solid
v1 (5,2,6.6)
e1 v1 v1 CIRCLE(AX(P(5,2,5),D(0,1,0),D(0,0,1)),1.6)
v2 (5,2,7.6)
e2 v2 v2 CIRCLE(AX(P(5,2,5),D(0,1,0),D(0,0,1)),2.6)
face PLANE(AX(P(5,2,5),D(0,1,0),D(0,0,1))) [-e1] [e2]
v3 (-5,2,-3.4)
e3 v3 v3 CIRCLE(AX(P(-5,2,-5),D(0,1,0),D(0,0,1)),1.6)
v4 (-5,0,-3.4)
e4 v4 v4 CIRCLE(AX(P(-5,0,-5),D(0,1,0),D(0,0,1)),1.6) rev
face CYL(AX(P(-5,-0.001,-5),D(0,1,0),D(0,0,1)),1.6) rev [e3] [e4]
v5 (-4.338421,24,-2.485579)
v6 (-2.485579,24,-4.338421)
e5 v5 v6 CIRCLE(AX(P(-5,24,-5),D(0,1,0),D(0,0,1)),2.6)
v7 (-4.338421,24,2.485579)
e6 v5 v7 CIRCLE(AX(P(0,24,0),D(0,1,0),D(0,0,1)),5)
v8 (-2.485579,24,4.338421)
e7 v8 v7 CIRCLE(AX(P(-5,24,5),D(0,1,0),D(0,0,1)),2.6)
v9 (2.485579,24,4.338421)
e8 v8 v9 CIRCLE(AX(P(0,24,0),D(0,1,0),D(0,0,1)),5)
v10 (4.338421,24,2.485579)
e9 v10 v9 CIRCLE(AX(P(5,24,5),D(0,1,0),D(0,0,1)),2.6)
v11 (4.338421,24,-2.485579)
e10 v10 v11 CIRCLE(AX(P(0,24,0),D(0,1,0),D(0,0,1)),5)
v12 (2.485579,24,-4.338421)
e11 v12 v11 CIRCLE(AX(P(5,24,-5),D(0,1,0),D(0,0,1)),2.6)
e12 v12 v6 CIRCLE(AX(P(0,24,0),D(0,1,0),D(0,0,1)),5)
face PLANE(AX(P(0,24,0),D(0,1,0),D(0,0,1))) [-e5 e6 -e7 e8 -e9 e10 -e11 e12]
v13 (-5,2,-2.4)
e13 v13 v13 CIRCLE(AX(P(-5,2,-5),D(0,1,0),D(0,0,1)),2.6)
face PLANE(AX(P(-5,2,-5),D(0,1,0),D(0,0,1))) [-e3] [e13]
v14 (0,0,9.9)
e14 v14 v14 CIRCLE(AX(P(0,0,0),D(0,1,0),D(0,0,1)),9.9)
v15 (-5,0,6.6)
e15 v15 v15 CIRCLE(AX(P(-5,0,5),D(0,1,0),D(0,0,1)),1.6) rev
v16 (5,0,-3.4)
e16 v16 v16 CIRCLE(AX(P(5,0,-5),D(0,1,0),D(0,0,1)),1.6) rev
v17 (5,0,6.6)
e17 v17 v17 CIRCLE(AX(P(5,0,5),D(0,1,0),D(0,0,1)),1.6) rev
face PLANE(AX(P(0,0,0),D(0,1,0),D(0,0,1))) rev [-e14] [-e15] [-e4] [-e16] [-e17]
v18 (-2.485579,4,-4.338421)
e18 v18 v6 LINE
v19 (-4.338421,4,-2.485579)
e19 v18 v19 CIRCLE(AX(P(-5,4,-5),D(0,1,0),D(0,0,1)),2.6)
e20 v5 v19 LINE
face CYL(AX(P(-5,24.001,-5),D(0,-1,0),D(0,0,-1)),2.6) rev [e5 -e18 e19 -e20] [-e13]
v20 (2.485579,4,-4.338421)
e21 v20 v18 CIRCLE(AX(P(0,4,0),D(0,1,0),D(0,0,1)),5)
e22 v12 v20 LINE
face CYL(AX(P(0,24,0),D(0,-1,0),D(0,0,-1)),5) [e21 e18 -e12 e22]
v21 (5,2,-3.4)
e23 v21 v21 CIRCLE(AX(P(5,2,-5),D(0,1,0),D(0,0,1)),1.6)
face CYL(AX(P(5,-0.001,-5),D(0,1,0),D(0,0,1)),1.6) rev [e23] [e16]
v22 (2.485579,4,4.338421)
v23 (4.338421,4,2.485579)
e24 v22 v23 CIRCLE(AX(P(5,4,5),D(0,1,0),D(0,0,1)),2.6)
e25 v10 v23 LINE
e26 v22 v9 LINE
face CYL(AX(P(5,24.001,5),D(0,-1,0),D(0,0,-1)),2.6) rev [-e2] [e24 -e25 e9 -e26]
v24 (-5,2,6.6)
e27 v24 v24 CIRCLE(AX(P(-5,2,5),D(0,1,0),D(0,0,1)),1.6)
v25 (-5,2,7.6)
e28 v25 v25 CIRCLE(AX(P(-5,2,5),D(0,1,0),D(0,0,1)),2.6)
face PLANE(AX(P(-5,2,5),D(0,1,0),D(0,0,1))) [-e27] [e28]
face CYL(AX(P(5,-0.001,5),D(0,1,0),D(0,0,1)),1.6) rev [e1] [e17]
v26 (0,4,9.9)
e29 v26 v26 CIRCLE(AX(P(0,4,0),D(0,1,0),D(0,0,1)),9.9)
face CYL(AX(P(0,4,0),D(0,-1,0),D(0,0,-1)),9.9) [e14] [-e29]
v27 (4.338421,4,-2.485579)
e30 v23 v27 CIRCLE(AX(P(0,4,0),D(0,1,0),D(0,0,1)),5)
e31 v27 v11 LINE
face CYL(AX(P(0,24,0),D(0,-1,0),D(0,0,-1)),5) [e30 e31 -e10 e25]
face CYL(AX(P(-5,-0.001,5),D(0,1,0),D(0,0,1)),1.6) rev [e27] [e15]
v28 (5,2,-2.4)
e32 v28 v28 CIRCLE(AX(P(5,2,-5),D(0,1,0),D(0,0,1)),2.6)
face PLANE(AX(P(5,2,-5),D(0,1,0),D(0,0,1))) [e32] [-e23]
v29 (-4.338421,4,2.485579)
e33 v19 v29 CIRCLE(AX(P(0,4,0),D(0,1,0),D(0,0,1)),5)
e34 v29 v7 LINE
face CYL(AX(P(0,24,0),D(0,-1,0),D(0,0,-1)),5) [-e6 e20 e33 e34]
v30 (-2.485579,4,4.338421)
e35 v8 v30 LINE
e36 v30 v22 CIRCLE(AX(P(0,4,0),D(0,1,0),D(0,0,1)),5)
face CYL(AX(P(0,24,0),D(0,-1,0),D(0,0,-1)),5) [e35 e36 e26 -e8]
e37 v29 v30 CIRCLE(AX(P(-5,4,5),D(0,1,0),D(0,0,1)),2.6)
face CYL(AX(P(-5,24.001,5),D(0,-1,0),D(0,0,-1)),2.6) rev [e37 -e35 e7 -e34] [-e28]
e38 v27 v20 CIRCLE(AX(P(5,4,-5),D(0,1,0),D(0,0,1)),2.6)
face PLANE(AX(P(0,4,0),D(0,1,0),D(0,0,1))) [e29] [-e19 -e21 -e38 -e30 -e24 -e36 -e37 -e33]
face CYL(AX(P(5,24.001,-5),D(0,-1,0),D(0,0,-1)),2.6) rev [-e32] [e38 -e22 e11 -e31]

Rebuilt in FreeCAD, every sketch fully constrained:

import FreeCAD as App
import Part
import Sketcher
from FreeCAD import Vector

doc = App.newDocument("Part")
body = doc.addObject("PartDesign::Body", "Body")

# Sketch on XZ plane
sketch1 = body.newObject("Sketcher::SketchObject", "Sketch")
sketch1.AttachmentSupport = (doc.getObject("XZ_Plane"), [""])
sketch1.MapMode = "FlatFace"
sketch1.addGeometry(Part.Circle(Vector(0, 0, 0), Vector(0, 0, 1), 10), False)
sketch1.addConstraint([
    Sketcher.Constraint("Coincident", 0, 3, -1, 1),
    Sketcher.Constraint("Diameter", 0, 19.8),
])
pad1 = body.newObject("PartDesign::Pad", "Pad")
pad1.Profile = sketch1
pad1.Length = 4
pad1.Reversed = True

# Sketch on XZ plane
sketch2 = body.newObject("Sketcher::SketchObject", "Sketch001")
sketch2.AttachmentSupport = (doc.getObject("XZ_Plane"), [""])
sketch2.MapMode = "FlatFace"
sketch2.AttachmentOffset = App.Placement(Vector(0, 0, -4), App.Rotation())
sketch2.addGeometry(Part.Circle(Vector(0, 0, 0), Vector(0, 0, 1), 5), False)
sketch2.addConstraint([
    Sketcher.Constraint("Coincident", 0, 3, -1, 1),
    Sketcher.Constraint("Diameter", 0, 10.0),
])
pad2 = body.newObject("PartDesign::Pad", "Pad001")
pad2.Profile = sketch2
pad2.Length = 20
pad2.Reversed = True

# Sketch on XZ plane
sketch3 = body.newObject("Sketcher::SketchObject", "Sketch002")
sketch3.AttachmentSupport = (doc.getObject("XZ_Plane"), [""])
sketch3.MapMode = "FlatFace"
sketch3.AttachmentOffset = App.Placement(Vector(0, 0, -4), App.Rotation())
sketch3.addGeometry(Part.Circle(Vector(5, -5, 0), Vector(0, 0, 1), 1.6), False)
sketch3.addConstraint([
    Sketcher.Constraint("Diameter", 0, 3.2),
    Sketcher.Constraint("DistanceX", -1, 1, 0, 3, 5.0),
    Sketcher.Constraint("DistanceY", 0, 3, -1, 1, 5.0),
])
pocket1 = body.newObject("PartDesign::Pocket", "Pocket")
pocket1.Profile = sketch3
pocket1.Type = "UpToFirst"
pocket1.Reversed = True

# Sketch on XZ plane
sketch4 = body.newObject("Sketcher::SketchObject", "Sketch003")
sketch4.AttachmentSupport = (doc.getObject("XZ_Plane"), [""])
sketch4.MapMode = "FlatFace"
sketch4.AttachmentOffset = App.Placement(Vector(0, 0, -4), App.Rotation())
sketch4.addGeometry(Part.Circle(Vector(5, 5, 0), Vector(0, 0, 1), 1.6), False)
sketch4.addConstraint([
    Sketcher.Constraint("Diameter", 0, 3.2),
    Sketcher.Constraint("DistanceX", -1, 1, 0, 3, 5.0),
    Sketcher.Constraint("DistanceY", -1, 1, 0, 3, 5.0),
])
pocket2 = body.newObject("PartDesign::Pocket", "Pocket001")
pocket2.Profile = sketch4
pocket2.Type = "UpToFirst"
pocket2.Reversed = True

# Sketch on XZ plane
sketch5 = body.newObject("Sketcher::SketchObject", "Sketch004")
sketch5.AttachmentSupport = (doc.getObject("XZ_Plane"), [""])
sketch5.MapMode = "FlatFace"
sketch5.AttachmentOffset = App.Placement(Vector(0, 0, -4), App.Rotation())
sketch5.addGeometry(Part.Circle(Vector(-5, 5, 0), Vector(0, 0, 1), 1.6), False)
sketch5.addConstraint([
    Sketcher.Constraint("Diameter", 0, 3.2),
    Sketcher.Constraint("DistanceX", 0, 3, -1, 1, 5.0),
    Sketcher.Constraint("DistanceY", -1, 1, 0, 3, 5.0),
])
pocket3 = body.newObject("PartDesign::Pocket", "Pocket002")
pocket3.Profile = sketch5
pocket3.Type = "UpToFirst"
pocket3.Reversed = True

# Sketch on XZ plane
sketch6 = body.newObject("Sketcher::SketchObject", "Sketch005")
sketch6.AttachmentSupport = (doc.getObject("XZ_Plane"), [""])
sketch6.MapMode = "FlatFace"
sketch6.AttachmentOffset = App.Placement(Vector(0, 0, -4), App.Rotation())
sketch6.addGeometry(Part.Circle(Vector(-5, -5, 0), Vector(0, 0, 1), 1.6), False)
sketch6.addConstraint([
    Sketcher.Constraint("Diameter", 0, 3.2),
    Sketcher.Constraint("DistanceX", 0, 3, -1, 1, 5.0),
    Sketcher.Constraint("DistanceY", 0, 3, -1, 1, 5.0),
])
pocket4 = body.newObject("PartDesign::Pocket", "Pocket003")
pocket4.Profile = sketch6
pocket4.Type = "UpToFirst"
pocket4.Reversed = True

# Sketch on XZ plane
sketch7 = body.newObject("Sketcher::SketchObject", "Sketch006")
sketch7.AttachmentSupport = (doc.getObject("XZ_Plane"), [""])
sketch7.MapMode = "FlatFace"
sketch7.AttachmentOffset = App.Placement(Vector(0, 0, -4), App.Rotation())
sketch7.addGeometry([
    Part.Circle(Vector(5, -5, 0), Vector(0, 0, 1), 2.6),
    Part.Circle(Vector(5, -5, 0), Vector(0, 0, 1), 1.6),
], False)
sketch7.addConstraint([
    Sketcher.Constraint("Coincident", 1, 3, 0, 3),
    Sketcher.Constraint("Diameter", 0, 5.2),
    Sketcher.Constraint("Diameter", 1, 3.2),
    Sketcher.Constraint("DistanceX", -1, 1, 0, 3, 5.0),
    Sketcher.Constraint("DistanceY", 0, 3, -1, 1, 5.0),
])
pocket5 = body.newObject("PartDesign::Pocket", "Pocket004")
pocket5.Profile = sketch7
pocket5.Length = 20

# Sketch on XZ plane
sketch8 = body.newObject("Sketcher::SketchObject", "Sketch007")
sketch8.AttachmentSupport = (doc.getObject("XZ_Plane"), [""])
sketch8.MapMode = "FlatFace"
sketch8.AttachmentOffset = App.Placement(Vector(0, 0, -4), App.Rotation())
sketch8.addGeometry([
    Part.Circle(Vector(-5, -5, 0), Vector(0, 0, 1), 2.6),
    Part.Circle(Vector(-5, -5, 0), Vector(0, 0, 1), 1.6),
], False)
sketch8.addConstraint([
    Sketcher.Constraint("Coincident", 1, 3, 0, 3),
    Sketcher.Constraint("Diameter", 0, 5.2),
    Sketcher.Constraint("Diameter", 1, 3.2),
    Sketcher.Constraint("DistanceX", 0, 3, -1, 1, 5.0),
    Sketcher.Constraint("DistanceY", 0, 3, -1, 1, 5.0),
])
pocket6 = body.newObject("PartDesign::Pocket", "Pocket005")
pocket6.Profile = sketch8
pocket6.Length = 20

# Sketch on XZ plane
sketch9 = body.newObject("Sketcher::SketchObject", "Sketch008")
sketch9.AttachmentSupport = (doc.getObject("XZ_Plane"), [""])
sketch9.MapMode = "FlatFace"
sketch9.AttachmentOffset = App.Placement(Vector(0, 0, -4), App.Rotation())
sketch9.addGeometry([
    Part.Circle(Vector(-5, 5, 0), Vector(0, 0, 1), 2.6),
    Part.Circle(Vector(-5, 5, 0), Vector(0, 0, 1), 1.6),
], False)
sketch9.addConstraint([
    Sketcher.Constraint("Coincident", 1, 3, 0, 3),
    Sketcher.Constraint("Diameter", 0, 5.2),
    Sketcher.Constraint("Diameter", 1, 3.2),
    Sketcher.Constraint("DistanceX", 0, 3, -1, 1, 5.0),
    Sketcher.Constraint("DistanceY", -1, 1, 0, 3, 5.0),
])
pocket7 = body.newObject("PartDesign::Pocket", "Pocket006")
pocket7.Profile = sketch9
pocket7.Length = 20

# Sketch on XZ plane
sketch10 = body.newObject("Sketcher::SketchObject", "Sketch009")
sketch10.AttachmentSupport = (doc.getObject("XZ_Plane"), [""])
sketch10.MapMode = "FlatFace"
sketch10.AttachmentOffset = App.Placement(Vector(0, 0, -4), App.Rotation())
sketch10.addGeometry([
    Part.Circle(Vector(5, 5, 0), Vector(0, 0, 1), 2.6),
    Part.Circle(Vector(5, 5, 0), Vector(0, 0, 1), 1.6),
], False)
sketch10.addConstraint([
    Sketcher.Constraint("Coincident", 1, 3, 0, 3),
    Sketcher.Constraint("Diameter", 0, 5.2),
    Sketcher.Constraint("Diameter", 1, 3.2),
    Sketcher.Constraint("DistanceX", -1, 1, 0, 3, 5.0),
    Sketcher.Constraint("DistanceY", -1, 1, 0, 3, 5.0),
])
pocket8 = body.newObject("PartDesign::Pocket", "Pocket007")
pocket8.Profile = sketch10
pocket8.Length = 20

# Sketch on XZ plane
sketch11 = body.newObject("Sketcher::SketchObject", "Sketch010")
sketch11.AttachmentSupport = (doc.getObject("XZ_Plane"), [""])
sketch11.MapMode = "FlatFace"
sketch11.AttachmentOffset = App.Placement(Vector(0, 0, -4), App.Rotation())
sketch11.addGeometry([
    Part.Circle(Vector(5, -5, 0), Vector(0, 0, 1), 2.6),  # 0
    Part.Circle(Vector(5, -5, 0), Vector(0, 0, 1), 1.6),  # 1
    Part.Circle(Vector(-5, -5, 0), Vector(0, 0, 1), 2.6),  # 2
    Part.Circle(Vector(-5, -5, 0), Vector(0, 0, 1), 1.6),  # 3
    Part.Circle(Vector(-5, 5, 0), Vector(0, 0, 1), 2.6),  # 4
    Part.Circle(Vector(-5, 5, 0), Vector(0, 0, 1), 1.6),  # 5
    Part.Circle(Vector(5, 5, 0), Vector(0, 0, 1), 2.6),  # 6
    Part.Circle(Vector(5, 5, 0), Vector(0, 0, 1), 1.6),  # 7
], False)
sketch11.addConstraint([
    Sketcher.Constraint("Coincident", 1, 3, 0, 3),
    Sketcher.Constraint("Coincident", 3, 3, 2, 3),
    Sketcher.Constraint("Coincident", 5, 3, 4, 3),
    Sketcher.Constraint("Coincident", 7, 3, 6, 3),
    Sketcher.Constraint("Equal", 0, 2),
    Sketcher.Constraint("Equal", 1, 3),
    Sketcher.Constraint("Equal", 2, 4),
    Sketcher.Constraint("Equal", 3, 5),
    Sketcher.Constraint("Equal", 4, 6),
    Sketcher.Constraint("Equal", 5, 7),
    Sketcher.Constraint("Symmetric", 0, 3, 4, 3, -1, 1),
    Sketcher.Constraint("Symmetric", 2, 3, 6, 3, -1, 1),
    Sketcher.Constraint("Symmetric", 0, 3, 2, 3, -2),
    Sketcher.Constraint("Diameter", 0, 5.2),
    Sketcher.Constraint("Diameter", 1, 3.2),
    Sketcher.Constraint("DistanceX", -1, 1, 0, 3, 5.0),
    Sketcher.Constraint("DistanceY", 0, 3, -1, 1, 5.0),
])
pocket9 = body.newObject("PartDesign::Pocket", "Pocket008")
pocket9.Profile = sketch11
pocket9.Length = 2
pocket9.Reversed = True

doc.recompute()
